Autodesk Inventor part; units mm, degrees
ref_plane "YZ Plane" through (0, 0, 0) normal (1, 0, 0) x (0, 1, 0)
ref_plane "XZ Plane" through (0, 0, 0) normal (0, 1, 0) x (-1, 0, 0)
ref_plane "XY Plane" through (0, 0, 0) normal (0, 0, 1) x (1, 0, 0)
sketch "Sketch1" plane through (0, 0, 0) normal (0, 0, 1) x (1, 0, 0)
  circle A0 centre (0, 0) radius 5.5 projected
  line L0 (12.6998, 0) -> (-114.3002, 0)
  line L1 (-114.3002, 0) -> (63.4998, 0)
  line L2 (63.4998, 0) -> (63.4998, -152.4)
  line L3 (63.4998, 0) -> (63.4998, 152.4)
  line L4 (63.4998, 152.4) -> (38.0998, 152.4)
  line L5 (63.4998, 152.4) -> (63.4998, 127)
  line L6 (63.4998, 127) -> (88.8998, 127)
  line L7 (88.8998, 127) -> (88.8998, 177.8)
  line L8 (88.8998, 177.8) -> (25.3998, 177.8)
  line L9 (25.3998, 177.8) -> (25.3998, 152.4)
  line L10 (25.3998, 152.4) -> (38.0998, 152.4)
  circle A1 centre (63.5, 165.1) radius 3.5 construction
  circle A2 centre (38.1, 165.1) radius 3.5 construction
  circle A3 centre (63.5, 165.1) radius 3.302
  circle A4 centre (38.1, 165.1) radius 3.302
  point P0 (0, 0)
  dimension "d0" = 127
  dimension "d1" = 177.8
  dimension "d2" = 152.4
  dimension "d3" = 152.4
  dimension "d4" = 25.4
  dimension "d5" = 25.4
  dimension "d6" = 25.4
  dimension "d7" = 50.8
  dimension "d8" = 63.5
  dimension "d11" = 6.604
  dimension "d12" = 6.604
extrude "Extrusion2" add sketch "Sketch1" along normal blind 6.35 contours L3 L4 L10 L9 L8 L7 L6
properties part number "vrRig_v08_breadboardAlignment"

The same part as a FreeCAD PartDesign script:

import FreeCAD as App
import Part
import Sketcher

V = App.Vector
Q = App.Units.Quantity

doc = App.newDocument("Part")
params = doc.addObject("Spreadsheet::Sheet", "Params")
for row, (alias, value) in enumerate([
    ("sketch1_diameter", "0.26 in"),
    ("sketch1_width", "1 in"),
    ("sketch1_width2", "2.5 in"),
    ("pad1_length", "0.25 in"),
], start=1):
    params.set(f"A{row}", alias)
    params.set(f"B{row}", "=" + value)
    params.setAlias(f"B{row}", alias)

body = doc.addObject("PartDesign::Body", "Body")

# Sketch on XY plane
sketch1 = body.newObject("Sketcher::SketchObject", "Sketch")
sketch1.AttachmentSupport = (doc.getObject("XY_Plane"), [""])
sketch1.MapMode = "FlatFace"
sketch1.addGeometry([
    Part.LineSegment(V(63.4998, 152.4, 0), V(63.4998, 127, 0)),  # 0
    Part.LineSegment(V(63.4998, 127, 0), V(88.8998, 127, 0)),  # 1
    Part.LineSegment(V(88.8998, 127, 0), V(88.8998, 177.8, 0)),  # 2
    Part.LineSegment(V(88.8998, 177.8, 0), V(25.3998, 177.8, 0)),  # 3
    Part.LineSegment(V(25.3998, 177.8, 0), V(25.3998, 152.4, 0)),  # 4
    Part.LineSegment(V(25.3998, 152.4, 0), V(63.4998, 152.4, 0)),  # 5
    Part.Circle(V(38.1, 165.1, 0), V(0, 0, 1), 3.302),  # 6
    Part.Circle(V(63.5, 165.1, 0), V(0, 0, 1), 3.302),  # 7
], False)
sketch1.addConstraint([
    Sketcher.Constraint("Coincident", 0, 2, 1, 1),
    Sketcher.Constraint("Coincident", 1, 2, 2, 1),
    Sketcher.Constraint("Coincident", 2, 2, 3, 1),
    Sketcher.Constraint("Coincident", 3, 2, 4, 1),
    Sketcher.Constraint("Coincident", 4, 2, 5, 1),
    Sketcher.Constraint("Coincident", 5, 2, 0, 1),
    Sketcher.Constraint("Vertical", 0),
    Sketcher.Constraint("Horizontal", 1),
    Sketcher.Constraint("Vertical", 2),
    Sketcher.Constraint("Horizontal", 3),
    Sketcher.Constraint("Vertical", 4),
    Sketcher.Constraint("Horizontal", 5),
    Sketcher.Constraint("Equal", 6, 7),
    Sketcher.Constraint("Horizontal", 6, 3, 7, 3),
    Sketcher.Constraint("Vertical", 7, 3, 0, 2),
    Sketcher.Constraint("Equal", 1, 0),
    Sketcher.Constraint("Equal", 0, 4),
    Sketcher.Constraint("Diameter", 6, Q("0.26 in")),
    Sketcher.Constraint("DistanceX", 1, 1, 1, 2, Q("1 in")),
    Sketcher.Constraint("DistanceX", 3, 2, 3, 1, Q("2.5 in")),
    Sketcher.Constraint("DistanceY", -1, 1, 0, 2, Q("5 in")),
    Sketcher.Constraint("DistanceX", -1, 1, 3, 2, Q("1 in")),
    Sketcher.Constraint("DistanceX", 6, 3, 7, 3, Q("1 in")),
    Sketcher.Constraint("DistanceY", -1, 1, 6, 3, Q("6.5 in")),
])
sketch1.setExpression("Constraints[17]", "Params.sketch1_diameter")
sketch1.setExpression("Constraints[18]", "Params.sketch1_width")
sketch1.setExpression("Constraints[19]", "Params.sketch1_width2")
pad1 = body.newObject("PartDesign::Pad", "Pad")
pad1.Profile = sketch1
pad1.setExpression("Length", "Params.pad1_length")

doc.recompute()
